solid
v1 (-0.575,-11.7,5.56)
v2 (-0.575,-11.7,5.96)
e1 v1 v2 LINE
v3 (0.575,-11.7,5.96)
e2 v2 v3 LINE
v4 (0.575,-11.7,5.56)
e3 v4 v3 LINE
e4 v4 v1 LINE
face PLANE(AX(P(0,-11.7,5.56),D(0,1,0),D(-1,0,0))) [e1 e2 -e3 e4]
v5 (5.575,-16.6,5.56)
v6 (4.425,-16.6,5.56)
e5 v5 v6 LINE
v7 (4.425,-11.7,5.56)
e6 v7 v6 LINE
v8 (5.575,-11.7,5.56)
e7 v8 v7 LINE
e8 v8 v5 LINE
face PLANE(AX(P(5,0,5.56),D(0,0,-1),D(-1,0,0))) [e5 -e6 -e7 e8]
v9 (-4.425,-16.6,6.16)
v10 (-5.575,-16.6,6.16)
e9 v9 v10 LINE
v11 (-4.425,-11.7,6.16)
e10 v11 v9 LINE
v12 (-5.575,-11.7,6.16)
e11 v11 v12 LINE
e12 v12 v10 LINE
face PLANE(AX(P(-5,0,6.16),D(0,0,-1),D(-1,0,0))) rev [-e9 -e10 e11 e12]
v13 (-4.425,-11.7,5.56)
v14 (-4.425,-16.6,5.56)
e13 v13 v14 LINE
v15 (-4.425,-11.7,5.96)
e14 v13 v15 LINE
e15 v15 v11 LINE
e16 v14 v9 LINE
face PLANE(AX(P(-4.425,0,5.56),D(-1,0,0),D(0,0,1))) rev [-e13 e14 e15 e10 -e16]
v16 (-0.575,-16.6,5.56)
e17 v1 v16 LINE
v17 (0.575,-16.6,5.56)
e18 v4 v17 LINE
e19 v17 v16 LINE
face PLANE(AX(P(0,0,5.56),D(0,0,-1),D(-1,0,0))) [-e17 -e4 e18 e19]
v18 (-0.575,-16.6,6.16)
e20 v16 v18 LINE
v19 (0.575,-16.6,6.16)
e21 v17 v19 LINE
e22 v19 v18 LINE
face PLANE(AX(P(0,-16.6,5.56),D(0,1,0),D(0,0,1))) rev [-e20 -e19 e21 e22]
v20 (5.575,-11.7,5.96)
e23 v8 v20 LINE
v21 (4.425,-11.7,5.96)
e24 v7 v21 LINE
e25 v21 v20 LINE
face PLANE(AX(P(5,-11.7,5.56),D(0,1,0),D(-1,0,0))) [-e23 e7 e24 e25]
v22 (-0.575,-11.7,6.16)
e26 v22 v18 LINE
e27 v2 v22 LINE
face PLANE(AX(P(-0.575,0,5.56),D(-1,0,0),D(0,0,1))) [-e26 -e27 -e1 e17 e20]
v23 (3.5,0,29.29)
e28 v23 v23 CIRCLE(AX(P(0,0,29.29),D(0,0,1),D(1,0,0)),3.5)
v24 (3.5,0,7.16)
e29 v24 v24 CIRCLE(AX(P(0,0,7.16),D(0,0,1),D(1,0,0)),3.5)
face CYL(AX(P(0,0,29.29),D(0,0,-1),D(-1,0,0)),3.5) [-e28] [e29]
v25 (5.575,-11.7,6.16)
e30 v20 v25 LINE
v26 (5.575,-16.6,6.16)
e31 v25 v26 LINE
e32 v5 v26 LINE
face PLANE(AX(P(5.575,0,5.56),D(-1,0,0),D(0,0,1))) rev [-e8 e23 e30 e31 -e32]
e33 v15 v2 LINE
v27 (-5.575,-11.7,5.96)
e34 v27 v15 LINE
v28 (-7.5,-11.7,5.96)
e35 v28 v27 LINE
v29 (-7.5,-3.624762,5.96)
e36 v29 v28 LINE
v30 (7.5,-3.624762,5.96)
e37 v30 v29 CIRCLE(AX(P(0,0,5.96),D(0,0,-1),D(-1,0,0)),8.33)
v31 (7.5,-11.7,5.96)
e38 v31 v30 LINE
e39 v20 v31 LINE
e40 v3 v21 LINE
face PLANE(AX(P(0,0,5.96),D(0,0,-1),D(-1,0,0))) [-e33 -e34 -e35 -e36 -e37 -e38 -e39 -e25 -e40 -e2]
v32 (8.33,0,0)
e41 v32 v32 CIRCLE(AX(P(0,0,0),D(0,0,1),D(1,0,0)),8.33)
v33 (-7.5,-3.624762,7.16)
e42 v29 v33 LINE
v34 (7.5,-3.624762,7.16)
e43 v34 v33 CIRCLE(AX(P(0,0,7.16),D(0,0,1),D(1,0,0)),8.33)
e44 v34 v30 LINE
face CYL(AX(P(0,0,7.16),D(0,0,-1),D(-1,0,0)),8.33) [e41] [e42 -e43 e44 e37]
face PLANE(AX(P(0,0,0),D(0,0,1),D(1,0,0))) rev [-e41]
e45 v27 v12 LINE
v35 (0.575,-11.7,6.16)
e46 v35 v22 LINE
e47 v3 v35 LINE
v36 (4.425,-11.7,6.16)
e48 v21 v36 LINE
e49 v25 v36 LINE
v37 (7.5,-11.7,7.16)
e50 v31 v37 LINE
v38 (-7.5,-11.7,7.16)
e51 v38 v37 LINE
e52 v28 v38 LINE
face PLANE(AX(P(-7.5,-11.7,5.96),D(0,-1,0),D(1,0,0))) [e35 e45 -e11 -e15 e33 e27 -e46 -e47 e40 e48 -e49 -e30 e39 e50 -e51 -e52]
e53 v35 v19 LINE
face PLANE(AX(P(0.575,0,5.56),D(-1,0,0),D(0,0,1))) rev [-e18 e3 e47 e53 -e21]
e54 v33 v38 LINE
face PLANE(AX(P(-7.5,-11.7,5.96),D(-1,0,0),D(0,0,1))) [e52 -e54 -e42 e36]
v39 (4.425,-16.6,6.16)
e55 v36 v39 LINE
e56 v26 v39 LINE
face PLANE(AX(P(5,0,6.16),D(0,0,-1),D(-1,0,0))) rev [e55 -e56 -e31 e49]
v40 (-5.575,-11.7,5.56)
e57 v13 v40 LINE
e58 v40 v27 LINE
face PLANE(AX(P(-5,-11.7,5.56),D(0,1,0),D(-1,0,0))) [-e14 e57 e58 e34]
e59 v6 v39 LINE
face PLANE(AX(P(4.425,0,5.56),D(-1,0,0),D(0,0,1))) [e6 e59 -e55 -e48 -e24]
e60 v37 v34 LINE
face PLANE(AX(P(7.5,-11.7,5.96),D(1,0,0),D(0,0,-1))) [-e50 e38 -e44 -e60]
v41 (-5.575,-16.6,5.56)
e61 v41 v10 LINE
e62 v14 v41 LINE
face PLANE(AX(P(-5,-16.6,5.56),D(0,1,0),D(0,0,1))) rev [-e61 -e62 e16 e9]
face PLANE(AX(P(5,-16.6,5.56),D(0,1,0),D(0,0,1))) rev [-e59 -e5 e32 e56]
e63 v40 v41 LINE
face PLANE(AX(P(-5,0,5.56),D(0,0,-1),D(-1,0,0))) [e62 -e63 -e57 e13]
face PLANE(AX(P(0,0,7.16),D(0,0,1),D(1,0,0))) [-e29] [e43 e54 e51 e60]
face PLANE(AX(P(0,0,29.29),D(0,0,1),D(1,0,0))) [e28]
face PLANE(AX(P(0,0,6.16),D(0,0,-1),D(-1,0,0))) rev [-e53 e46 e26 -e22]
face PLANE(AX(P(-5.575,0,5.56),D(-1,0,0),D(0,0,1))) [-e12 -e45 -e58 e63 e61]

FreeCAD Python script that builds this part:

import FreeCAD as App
import Part
import Sketcher
from FreeCAD import Vector
Q = App.Units.Quantity

doc = App.newDocument("Part")
body = doc.addObject("PartDesign::Body", "Body")

# Sketch on XY plane
sketch1 = doc.addObject("Sketcher::SketchObject", "Sketch")
body.addObject(sketch1)
sketch1.AttachmentSupport = (doc.XY_Plane, [""])
sketch1.MapMode = "FlatFace"
sketch1.addGeometry(Part.Circle(Vector(0, 0, 0), Vector(0, 0, 1), 8), False)
sketch1.addConstraint([
    Sketcher.Constraint("Coincident", 0, 3, -1, 1),
    Sketcher.Constraint("Diameter", 0, Q("16.66 mm")),
])
pad1 = doc.addObject("PartDesign::Pad", "Pad")
body.addObject(pad1)
pad1.Profile = sketch1
pad1.Length = 7.16

# Sketch on XY plane
sketch2 = doc.addObject("Sketcher::SketchObject", "Sketch001")
body.addObject(sketch2)
sketch2.AttachmentSupport = (doc.XY_Plane, [""])
sketch2.MapMode = "FlatFace"
sketch2.AttachmentOffset = App.Placement(Vector(0, 0, 7.16), App.Rotation())
sketch2.addGeometry(Part.Circle(Vector(0, 0, 0), Vector(0, 0, 1), 3.5), False)
sketch2.addConstraint([
    Sketcher.Constraint("Coincident", 0, 3, -1, 1),
    Sketcher.Constraint("Diameter", 0, Q("7 mm")),
])
pad2 = doc.addObject("PartDesign::Pad", "Pad001")
body.addObject(pad2)
pad2.Profile = sketch2
pad2.Length = 22.13

# Sketch on XY plane
sketch3 = doc.addObject("Sketcher::SketchObject", "Sketch002")
body.addObject(sketch3)
sketch3.AttachmentSupport = (doc.XY_Plane, [""])
sketch3.MapMode = "FlatFace"
sketch3.AttachmentOffset = App.Placement(Vector(0, 0, 7.16), App.Rotation())
sketch3.addGeometry([
    Part.LineSegment(Vector(-8, 0, 0), Vector(-8, -12, 0)),
    Part.LineSegment(Vector(-8, -12, 0), Vector(8, -12, 0)),
    Part.LineSegment(Vector(8, -12, 0), Vector(8, 0, 0)),
    Part.LineSegment(Vector(8, 0, 0), Vector(-8, 0, 0)),
], False)
sketch3.addConstraint([
    Sketcher.Constraint("Coincident", 0, 2, 1, 1),
    Sketcher.Constraint("Coincident", 1, 2, 2, 1),
    Sketcher.Constraint("Coincident", 2, 2, 3, 1),
    Sketcher.Constraint("Coincident", 3, 2, 0, 1),
    Sketcher.Constraint("Vertical", 0),
    Sketcher.Constraint("Horizontal", 1),
    Sketcher.Constraint("Vertical", 2),
    Sketcher.Constraint("Horizontal", 3),
    Sketcher.Constraint("DistanceX", 1, 1, 1, 2, Q("15 mm")),
    Sketcher.Constraint("DistanceX", 0, 2, -1, 1, Q("7.5 mm")),
    Sketcher.Constraint("DistanceY", 0, 2, -1, 1, Q("11.7 mm")),
    Sketcher.Constraint("DistanceY", 0, 2, 0, 1, Q("11.204542 mm")),
])
pad3 = doc.addObject("PartDesign::Pad", "Pad002")
body.addObject(pad3)
pad3.Profile = sketch3
pad3.Length = 1.2
pad3.Reversed = True

# Sketch on XY plane
sketch4 = doc.addObject("Sketcher::SketchObject", "Sketch003")
body.addObject(sketch4)
sketch4.AttachmentSupport = (doc.XY_Plane, [""])
sketch4.MapMode = "FlatFace"
sketch4.AttachmentOffset = App.Placement(Vector(0, 0, 6.16), App.Rotation())
sketch4.addGeometry([
    Part.LineSegment(Vector(0.6, -11.7, 0), Vector(0.6, -16.6, 0)),
    Part.LineSegment(Vector(0.6, -16.6, 0), Vector(-0.6, -16.6, 0)),
    Part.LineSegment(Vector(-0.6, -16.6, 0), Vector(-0.6, -11.7, 0)),
    Part.LineSegment(Vector(-0.6, -11.7, 0), Vector(0.6, -11.7, 0)),
], False)
sketch4.addConstraint([
    Sketcher.Constraint("Coincident", 0, 2, 1, 1),
    Sketcher.Constraint("Coincident", 1, 2, 2, 1),
    Sketcher.Constraint("Coincident", 2, 2, 3, 1),
    Sketcher.Constraint("Coincident", 3, 2, 0, 1),
    Sketcher.Constraint("Vertical", 0),
    Sketcher.Constraint("Horizontal", 1),
    Sketcher.Constraint("Vertical", 2),
    Sketcher.Constraint("Horizontal", 3),
    Sketcher.Constraint("DistanceY", 0, 2, 0, 1, Q("4.9 mm")),
    Sketcher.Constraint("DistanceX", 1, 2, 1, 1, Q("1.15 mm")),
    Sketcher.Constraint("DistanceY", 0, 2, -1, 1, Q("16.6 mm")),
    Sketcher.Constraint("DistanceX", -1, 1, 0, 2, Q("0.575 mm")),
])
pad4 = doc.addObject("PartDesign::Pad", "Pad003")
body.addObject(pad4)
pad4.Profile = sketch4
pad4.Length = 0.6
pad4.Reversed = True
doc.recompute()

linearpattern = doc.addObject("PartDesign::LinearPattern", "LinearPattern")
body.addObject(linearpattern)
linearpattern.Originals = [pad4]
linearpattern.Direction = (doc.X_Axis, [""])
linearpattern.Mode = "offset"
linearpattern.Offset = 5
linearpattern.Occurrences = 2
body.Tip = linearpattern
doc.recompute()

linearpattern2 = doc.addObject("PartDesign::LinearPattern", "LinearPattern001")
body.addObject(linearpattern2)
linearpattern2.Originals = [pad4]
linearpattern2.Direction = (doc.X_Axis, [""])
linearpattern2.Mode = "offset"
linearpattern2.Offset = 5
linearpattern2.Occurrences = 2
linearpattern2.Reversed = True
body.Tip = linearpattern2

doc.recompute()
